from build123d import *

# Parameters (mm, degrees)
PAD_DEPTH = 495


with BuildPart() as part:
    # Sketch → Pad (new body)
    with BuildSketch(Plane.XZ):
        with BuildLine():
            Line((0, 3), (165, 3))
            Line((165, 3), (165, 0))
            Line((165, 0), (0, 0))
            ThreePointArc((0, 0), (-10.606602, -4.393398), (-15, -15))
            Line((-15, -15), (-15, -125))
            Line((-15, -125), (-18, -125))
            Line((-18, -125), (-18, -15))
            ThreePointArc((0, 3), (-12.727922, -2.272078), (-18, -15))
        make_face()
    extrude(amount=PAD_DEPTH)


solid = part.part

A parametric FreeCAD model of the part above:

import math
import FreeCAD as App
import Part
import Sketcher
Q = App.Units.Quantity

doc = App.newDocument("Part")
body = doc.addObject("PartDesign::Body", "Body")

sketch1 = body.newObject("Sketcher::SketchObject", "Sketch")
sketch1.AttachmentSupport = (doc.getObject("XZ_Plane"), [""])
sketch1.MapMode = "FlatFace"
sketch1.addGeometry(Part.LineSegment(App.Vector(165, 3, 0), App.Vector(0, 3, 0)), False)
sketch1.addGeometry(Part.ArcOfCircle(Part.Circle(App.Vector(0, -15, 0), App.Vector(0, 0, 1), 18), math.radians(90.000001), math.radians(179.999999)), False)
sketch1.addGeometry(Part.LineSegment(App.Vector(-18, -15, 0), App.Vector(-18, -125, 0)), False)
sketch1.addGeometry(Part.LineSegment(App.Vector(-18, -125, 0), App.Vector(-15, -125, 0)), False)
sketch1.addGeometry(Part.LineSegment(App.Vector(-15, -125, 0), App.Vector(-15, -15, 0)), False)
sketch1.addGeometry(Part.ArcOfCircle(Part.Circle(App.Vector(-0.000001, -14.999999, 0), App.Vector(0, 0, 1), 14.999999), math.radians(89.999996), math.radians(180.000004)), False)
sketch1.addGeometry(Part.LineSegment(App.Vector(0, 0, 0), App.Vector(165, 0, 0)), False)
sketch1.addGeometry(Part.LineSegment(App.Vector(165, 0, 0), App.Vector(165, 3, 0)), False)
sketch1.addConstraint(Sketcher.Constraint("Tangent", 0, 2, 1, 1))
sketch1.addConstraint(Sketcher.Constraint("Tangent", 1, 2, 2, 1))
sketch1.addConstraint(Sketcher.Constraint("Coincident", 2, 2, 3, 1))
sketch1.addConstraint(Sketcher.Constraint("Coincident", 3, 2, 4, 1))
sketch1.addConstraint(Sketcher.Constraint("Tangent", 4, 2, 5, 2))
sketch1.addConstraint(Sketcher.Constraint("Tangent", 5, 1, 6, 1))
sketch1.addConstraint(Sketcher.Constraint("Coincident", 6, 2, 7, 1))
sketch1.addConstraint(Sketcher.Constraint("Coincident", 7, 2, 0, 1))
sketch1.addConstraint(Sketcher.Constraint("Horizontal", 0))
sketch1.addConstraint(Sketcher.Constraint("Vertical", 2))
sketch1.addConstraint(Sketcher.Constraint("Horizontal", 3))
sketch1.addConstraint(Sketcher.Constraint("Vertical", 4))
sketch1.addConstraint(Sketcher.Constraint("Horizontal", 6))
sketch1.addConstraint(Sketcher.Constraint("Vertical", 7))
sketch1.addConstraint(Sketcher.Constraint("Coincident", 5, 1, -1, 1))
sketch1.addConstraint(Sketcher.Constraint("Coincident", 5, 3, 1, 3))
sketch1.addConstraint(Sketcher.Constraint("Radius", 1, Q("18 mm")))
sketch1.addConstraint(Sketcher.Constraint("Radius", 5, Q("14.999999 mm")))
sketch1.addConstraint(Sketcher.Constraint("DistanceX", 0, 2, 0, 1, Q("165 mm")))
sketch1.addConstraint(Sketcher.Constraint("DistanceY", 2, 2, 2, 1, Q("110 mm")))
pad1 = body.newObject("PartDesign::Pad", "Pad")
pad1.Profile = sketch1
pad1.Length = 495

doc.recompute()
